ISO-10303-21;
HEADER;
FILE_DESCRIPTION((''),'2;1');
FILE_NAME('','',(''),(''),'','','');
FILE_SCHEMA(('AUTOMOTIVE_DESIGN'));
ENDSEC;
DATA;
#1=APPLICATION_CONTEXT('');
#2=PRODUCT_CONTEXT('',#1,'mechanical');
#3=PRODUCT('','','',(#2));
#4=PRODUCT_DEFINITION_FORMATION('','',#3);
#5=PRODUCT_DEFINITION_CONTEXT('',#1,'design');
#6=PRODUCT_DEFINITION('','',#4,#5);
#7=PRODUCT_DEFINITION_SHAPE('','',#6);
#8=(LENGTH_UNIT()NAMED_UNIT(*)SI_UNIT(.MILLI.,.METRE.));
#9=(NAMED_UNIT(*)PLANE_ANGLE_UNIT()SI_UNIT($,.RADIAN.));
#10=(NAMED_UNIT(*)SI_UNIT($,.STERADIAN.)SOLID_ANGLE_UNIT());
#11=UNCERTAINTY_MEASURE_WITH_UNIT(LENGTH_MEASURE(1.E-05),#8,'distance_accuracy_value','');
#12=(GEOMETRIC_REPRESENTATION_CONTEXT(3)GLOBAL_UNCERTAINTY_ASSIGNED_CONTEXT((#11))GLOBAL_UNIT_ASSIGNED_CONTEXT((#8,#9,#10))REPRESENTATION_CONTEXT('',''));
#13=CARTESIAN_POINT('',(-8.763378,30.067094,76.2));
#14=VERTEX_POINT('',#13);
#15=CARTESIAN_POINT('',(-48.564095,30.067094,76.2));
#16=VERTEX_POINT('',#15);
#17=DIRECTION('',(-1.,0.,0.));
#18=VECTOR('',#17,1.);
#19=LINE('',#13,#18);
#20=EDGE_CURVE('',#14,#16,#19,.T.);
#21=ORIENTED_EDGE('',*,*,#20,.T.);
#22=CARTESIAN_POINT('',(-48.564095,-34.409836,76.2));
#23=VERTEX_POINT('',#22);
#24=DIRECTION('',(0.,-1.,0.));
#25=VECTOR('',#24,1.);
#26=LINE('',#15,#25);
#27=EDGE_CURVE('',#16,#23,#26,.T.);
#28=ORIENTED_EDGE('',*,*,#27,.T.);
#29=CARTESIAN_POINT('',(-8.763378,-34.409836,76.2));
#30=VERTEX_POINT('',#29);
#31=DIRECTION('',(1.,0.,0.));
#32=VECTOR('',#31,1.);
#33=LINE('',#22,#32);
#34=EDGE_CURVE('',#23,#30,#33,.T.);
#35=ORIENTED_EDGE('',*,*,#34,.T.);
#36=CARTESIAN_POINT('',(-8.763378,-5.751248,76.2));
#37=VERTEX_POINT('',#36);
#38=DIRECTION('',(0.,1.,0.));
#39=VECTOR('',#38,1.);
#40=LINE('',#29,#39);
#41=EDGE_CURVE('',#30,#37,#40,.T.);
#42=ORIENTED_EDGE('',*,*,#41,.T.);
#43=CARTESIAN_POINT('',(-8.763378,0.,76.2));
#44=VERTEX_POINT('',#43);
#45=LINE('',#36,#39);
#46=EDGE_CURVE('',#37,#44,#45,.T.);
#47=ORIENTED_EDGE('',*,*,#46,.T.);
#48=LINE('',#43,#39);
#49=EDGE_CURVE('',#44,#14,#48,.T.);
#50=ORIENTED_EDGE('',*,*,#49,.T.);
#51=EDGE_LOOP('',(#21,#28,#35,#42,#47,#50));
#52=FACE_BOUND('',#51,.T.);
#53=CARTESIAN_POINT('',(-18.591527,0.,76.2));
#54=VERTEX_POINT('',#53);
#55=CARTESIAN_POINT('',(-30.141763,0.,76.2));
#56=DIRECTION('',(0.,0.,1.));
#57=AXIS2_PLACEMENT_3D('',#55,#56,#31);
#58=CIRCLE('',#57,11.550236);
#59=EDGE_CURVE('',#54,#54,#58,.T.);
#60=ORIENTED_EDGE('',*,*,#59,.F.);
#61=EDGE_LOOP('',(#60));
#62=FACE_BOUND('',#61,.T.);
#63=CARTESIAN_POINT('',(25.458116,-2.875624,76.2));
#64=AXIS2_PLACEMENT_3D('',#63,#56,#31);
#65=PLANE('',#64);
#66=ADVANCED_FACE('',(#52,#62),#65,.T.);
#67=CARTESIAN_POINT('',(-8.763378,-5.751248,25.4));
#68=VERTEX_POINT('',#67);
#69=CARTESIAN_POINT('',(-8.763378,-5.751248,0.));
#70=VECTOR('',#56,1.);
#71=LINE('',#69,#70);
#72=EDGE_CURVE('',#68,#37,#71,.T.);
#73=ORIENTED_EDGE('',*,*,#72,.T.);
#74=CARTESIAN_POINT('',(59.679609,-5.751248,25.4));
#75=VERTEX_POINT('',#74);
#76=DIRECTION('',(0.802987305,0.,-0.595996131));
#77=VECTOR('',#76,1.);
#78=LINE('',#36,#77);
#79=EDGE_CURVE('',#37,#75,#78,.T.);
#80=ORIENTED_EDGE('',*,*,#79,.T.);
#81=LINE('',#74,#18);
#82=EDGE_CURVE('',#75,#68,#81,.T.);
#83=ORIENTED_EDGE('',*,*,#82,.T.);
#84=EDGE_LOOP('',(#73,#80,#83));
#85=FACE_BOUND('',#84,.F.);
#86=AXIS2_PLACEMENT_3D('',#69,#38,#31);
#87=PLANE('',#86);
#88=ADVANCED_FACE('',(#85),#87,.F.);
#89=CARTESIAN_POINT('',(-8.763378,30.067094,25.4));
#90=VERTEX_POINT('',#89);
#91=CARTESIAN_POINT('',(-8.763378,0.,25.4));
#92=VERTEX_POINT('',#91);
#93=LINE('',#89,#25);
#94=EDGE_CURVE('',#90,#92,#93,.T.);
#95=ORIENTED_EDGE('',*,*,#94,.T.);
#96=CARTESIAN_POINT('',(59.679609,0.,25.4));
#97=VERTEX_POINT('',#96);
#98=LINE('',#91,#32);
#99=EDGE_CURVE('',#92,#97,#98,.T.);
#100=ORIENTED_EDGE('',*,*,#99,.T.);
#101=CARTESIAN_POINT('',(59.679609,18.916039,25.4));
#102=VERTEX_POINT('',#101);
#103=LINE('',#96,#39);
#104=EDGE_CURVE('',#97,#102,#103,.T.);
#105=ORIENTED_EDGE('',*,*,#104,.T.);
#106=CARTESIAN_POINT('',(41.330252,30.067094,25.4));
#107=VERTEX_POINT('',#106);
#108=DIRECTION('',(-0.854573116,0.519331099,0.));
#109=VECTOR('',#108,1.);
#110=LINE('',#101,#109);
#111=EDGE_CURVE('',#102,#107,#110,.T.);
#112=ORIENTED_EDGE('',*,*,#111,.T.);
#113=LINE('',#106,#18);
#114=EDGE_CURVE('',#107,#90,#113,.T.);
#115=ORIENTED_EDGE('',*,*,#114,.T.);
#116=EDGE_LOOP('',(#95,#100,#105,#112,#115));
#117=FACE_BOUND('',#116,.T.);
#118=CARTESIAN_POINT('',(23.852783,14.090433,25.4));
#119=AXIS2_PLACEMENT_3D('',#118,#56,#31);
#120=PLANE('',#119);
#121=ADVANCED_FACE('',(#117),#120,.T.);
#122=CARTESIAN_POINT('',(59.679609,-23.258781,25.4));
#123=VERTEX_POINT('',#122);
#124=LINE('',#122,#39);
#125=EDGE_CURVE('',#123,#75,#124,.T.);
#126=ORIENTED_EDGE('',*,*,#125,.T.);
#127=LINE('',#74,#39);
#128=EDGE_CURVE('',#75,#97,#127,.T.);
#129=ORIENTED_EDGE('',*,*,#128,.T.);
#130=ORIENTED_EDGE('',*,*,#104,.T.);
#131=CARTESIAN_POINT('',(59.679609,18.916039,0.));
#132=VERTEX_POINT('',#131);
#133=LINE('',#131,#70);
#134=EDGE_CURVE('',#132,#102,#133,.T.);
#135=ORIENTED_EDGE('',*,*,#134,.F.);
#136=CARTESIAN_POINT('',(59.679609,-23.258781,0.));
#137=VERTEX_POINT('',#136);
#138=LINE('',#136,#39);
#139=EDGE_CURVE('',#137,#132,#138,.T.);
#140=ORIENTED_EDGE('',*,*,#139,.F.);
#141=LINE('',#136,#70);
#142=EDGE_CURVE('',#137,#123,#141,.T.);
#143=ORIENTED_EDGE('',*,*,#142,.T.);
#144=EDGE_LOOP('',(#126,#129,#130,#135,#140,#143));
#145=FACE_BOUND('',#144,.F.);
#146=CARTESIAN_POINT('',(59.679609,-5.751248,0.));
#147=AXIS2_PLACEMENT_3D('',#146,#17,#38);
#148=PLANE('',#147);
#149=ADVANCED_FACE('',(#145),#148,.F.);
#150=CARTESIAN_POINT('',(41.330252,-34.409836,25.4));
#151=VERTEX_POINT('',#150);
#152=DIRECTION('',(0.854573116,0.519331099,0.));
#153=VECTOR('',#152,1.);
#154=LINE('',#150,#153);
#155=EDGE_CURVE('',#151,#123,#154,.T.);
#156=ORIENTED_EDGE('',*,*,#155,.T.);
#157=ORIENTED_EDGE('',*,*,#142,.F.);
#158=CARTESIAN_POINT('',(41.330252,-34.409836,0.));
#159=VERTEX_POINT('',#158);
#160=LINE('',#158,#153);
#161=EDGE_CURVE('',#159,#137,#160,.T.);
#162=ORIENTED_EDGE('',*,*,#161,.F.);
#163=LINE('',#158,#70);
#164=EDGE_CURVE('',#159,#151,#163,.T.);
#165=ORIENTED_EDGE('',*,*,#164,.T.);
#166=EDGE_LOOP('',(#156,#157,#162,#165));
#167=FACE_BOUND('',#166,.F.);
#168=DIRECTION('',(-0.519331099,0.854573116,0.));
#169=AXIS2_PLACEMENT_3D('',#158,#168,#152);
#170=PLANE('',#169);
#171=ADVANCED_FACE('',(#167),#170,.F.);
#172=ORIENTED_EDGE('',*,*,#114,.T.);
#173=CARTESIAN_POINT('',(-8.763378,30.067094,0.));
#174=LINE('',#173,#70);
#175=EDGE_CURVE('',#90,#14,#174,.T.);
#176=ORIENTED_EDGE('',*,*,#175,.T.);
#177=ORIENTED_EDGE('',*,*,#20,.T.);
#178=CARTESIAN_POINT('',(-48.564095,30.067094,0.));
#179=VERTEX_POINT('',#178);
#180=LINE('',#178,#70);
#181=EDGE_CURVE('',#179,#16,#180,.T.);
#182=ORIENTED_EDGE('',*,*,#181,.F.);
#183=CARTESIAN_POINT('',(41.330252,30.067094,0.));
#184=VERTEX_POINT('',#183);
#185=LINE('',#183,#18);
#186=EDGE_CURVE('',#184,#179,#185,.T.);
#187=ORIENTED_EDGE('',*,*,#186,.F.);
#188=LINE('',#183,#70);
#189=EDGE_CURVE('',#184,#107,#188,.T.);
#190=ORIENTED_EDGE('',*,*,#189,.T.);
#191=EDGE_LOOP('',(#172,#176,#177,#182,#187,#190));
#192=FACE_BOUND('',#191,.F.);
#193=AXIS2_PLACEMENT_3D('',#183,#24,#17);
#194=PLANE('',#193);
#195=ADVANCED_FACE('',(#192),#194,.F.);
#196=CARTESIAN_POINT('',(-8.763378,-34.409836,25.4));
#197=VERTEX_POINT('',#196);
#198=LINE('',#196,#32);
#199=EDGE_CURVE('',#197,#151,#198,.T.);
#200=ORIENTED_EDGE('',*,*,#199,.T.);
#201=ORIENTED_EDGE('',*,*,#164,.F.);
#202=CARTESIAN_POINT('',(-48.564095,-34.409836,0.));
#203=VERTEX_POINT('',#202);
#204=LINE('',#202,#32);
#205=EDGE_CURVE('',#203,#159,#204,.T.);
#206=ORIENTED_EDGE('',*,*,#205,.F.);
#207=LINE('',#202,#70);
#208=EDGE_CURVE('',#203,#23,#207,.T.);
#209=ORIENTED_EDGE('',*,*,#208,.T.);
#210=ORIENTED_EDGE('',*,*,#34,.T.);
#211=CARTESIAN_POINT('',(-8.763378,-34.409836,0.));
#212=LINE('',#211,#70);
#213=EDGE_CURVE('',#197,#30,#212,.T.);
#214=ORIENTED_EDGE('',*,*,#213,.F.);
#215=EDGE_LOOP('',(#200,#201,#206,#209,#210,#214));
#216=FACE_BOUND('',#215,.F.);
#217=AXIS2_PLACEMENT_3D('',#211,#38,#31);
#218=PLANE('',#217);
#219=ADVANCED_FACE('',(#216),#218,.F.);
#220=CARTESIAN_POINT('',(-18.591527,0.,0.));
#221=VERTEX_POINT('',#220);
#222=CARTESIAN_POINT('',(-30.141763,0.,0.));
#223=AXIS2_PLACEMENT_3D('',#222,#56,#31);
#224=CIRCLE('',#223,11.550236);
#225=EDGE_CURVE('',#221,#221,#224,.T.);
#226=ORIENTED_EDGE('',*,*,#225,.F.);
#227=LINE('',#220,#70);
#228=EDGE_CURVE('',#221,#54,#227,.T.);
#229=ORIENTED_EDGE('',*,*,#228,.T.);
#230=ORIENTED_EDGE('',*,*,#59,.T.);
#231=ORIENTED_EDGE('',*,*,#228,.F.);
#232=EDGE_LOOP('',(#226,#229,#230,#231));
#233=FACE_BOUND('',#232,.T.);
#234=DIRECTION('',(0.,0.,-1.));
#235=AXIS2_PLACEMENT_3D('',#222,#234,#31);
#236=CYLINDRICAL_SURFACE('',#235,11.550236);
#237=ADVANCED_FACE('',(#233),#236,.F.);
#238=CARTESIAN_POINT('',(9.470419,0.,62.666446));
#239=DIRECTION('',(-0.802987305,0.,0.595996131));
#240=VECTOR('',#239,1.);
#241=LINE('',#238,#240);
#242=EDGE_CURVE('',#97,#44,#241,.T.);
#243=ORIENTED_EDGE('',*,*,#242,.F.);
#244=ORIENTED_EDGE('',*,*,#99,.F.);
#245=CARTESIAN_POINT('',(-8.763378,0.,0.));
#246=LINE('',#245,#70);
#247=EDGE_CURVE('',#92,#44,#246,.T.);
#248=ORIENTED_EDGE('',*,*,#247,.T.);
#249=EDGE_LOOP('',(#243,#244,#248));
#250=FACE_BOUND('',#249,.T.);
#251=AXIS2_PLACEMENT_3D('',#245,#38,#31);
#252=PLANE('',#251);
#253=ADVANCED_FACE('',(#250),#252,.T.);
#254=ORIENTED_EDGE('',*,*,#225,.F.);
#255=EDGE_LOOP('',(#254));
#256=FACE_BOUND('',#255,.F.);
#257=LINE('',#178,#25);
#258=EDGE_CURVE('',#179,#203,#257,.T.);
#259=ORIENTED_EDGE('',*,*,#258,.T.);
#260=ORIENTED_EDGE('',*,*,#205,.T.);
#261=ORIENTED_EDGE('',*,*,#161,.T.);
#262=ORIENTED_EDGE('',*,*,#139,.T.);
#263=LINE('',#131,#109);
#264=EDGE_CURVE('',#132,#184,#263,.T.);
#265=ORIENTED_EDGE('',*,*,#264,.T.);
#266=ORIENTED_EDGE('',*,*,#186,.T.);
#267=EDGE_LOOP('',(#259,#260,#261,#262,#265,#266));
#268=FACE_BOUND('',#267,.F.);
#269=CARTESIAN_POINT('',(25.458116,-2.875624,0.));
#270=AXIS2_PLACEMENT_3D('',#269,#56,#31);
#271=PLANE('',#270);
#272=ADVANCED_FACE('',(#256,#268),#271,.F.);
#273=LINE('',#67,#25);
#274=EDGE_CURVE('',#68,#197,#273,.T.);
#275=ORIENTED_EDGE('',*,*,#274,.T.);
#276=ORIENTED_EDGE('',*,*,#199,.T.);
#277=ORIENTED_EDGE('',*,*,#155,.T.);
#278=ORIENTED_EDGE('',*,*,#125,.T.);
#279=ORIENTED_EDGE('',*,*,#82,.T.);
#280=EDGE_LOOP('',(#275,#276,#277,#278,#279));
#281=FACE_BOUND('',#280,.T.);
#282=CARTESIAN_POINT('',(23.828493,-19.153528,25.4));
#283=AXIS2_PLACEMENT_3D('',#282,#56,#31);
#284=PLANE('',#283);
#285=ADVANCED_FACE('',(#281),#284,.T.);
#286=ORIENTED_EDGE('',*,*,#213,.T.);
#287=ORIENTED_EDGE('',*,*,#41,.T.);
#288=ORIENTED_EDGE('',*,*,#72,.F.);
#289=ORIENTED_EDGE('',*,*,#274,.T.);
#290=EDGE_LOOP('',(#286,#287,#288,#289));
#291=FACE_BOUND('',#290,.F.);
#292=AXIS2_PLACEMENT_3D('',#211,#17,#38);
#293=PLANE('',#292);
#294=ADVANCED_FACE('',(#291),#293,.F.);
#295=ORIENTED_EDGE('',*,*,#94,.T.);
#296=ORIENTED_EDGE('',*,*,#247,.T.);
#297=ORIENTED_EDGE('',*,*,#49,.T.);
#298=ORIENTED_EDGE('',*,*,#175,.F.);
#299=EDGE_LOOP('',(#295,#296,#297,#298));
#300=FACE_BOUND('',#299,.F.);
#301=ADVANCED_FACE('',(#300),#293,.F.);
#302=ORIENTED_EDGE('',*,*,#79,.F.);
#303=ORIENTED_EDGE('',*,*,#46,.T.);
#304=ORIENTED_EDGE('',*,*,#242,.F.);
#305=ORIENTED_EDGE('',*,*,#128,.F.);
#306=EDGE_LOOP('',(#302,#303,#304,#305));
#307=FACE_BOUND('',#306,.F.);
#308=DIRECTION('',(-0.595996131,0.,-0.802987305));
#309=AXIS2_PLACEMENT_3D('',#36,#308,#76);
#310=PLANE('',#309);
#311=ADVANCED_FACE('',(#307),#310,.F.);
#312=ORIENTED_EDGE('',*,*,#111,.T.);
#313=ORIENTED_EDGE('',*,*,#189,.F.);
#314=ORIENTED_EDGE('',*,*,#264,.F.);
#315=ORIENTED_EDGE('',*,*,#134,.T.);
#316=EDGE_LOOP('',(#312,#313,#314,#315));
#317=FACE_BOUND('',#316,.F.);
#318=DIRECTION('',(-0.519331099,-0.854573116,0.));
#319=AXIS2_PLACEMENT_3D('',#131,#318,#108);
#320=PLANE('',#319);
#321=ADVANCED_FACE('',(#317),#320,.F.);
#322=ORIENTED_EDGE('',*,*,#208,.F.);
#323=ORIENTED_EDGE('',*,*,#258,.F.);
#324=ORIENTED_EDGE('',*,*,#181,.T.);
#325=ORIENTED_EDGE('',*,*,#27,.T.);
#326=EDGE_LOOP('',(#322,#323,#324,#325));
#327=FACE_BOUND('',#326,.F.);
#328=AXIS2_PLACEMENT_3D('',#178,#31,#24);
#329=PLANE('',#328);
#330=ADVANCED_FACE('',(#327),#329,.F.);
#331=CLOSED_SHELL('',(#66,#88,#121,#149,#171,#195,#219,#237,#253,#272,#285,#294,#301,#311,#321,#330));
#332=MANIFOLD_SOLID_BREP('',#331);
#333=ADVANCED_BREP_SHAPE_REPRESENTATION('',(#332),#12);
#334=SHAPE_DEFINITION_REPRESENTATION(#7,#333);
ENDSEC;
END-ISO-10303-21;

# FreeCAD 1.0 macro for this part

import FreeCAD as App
import Part
import Sketcher
from FreeCAD import Vector
Q = App.Units.Quantity


def add_polygon(sketch, points):
    """Adds a closed chain of lines whose ends are joined by coincident constraints."""
    first, n = sketch.GeometryCount, len(points)
    for a, b in zip(points, points[1:] + points[:1]):
        sketch.addGeometry(Part.LineSegment(App.Vector(*a, 0), App.Vector(*b, 0)), False)
    for i in range(n):
        sketch.addConstraint(Sketcher.Constraint("Coincident", first + i, 2, first + (i + 1) % n, 1))

doc = App.newDocument("Part")
body = doc.addObject("PartDesign::Body", "Body")

sketch1 = body.newObject("Sketcher::SketchObject", "Sketch")
sketch1.AttachmentSupport = (doc.getObject("XY_Plane"), [""])
sketch1.MapMode = "FlatFace"
add_polygon(sketch1, [(-8.763378, 30.067094), (-48.564095, 30.067094), (-48.564095, -34.409836), (-8.763378, -34.409836)])
sketch1.addGeometry(Part.Circle(Vector(-30.141763, 0, 0), Vector(0, 0, 1), 11.550236), False)
sketch1.addConstraint([
    Sketcher.Constraint("Horizontal", 0),
    Sketcher.Constraint("Vertical", 1),
    Sketcher.Constraint("Horizontal", 2),
    Sketcher.Constraint("Vertical", 3),
    Sketcher.Constraint("PointOnObject", 4, 3, -1),
    Sketcher.Constraint("Diameter", 4, 23.100473),
    Sketcher.Constraint("DistanceY", 1, 2, 1, 1, 64.47693),
    Sketcher.Constraint("DistanceX", 0, 2, 0, 1, 39.800717),
    Sketcher.Constraint("DistanceX", 0, 2, 4, 3, 18.422332),
    Sketcher.Constraint("DistanceX", 4, 3, -1, 1, 30.141763),
    Sketcher.Constraint("DistanceY", -1, 1, 0, 2, 30.067094),
])
pad1 = body.newObject("PartDesign::Pad", "Pad")
pad1.Profile = sketch1
pad1.Length = Q("3 in")

sketch2 = body.newObject("Sketcher::SketchObject", "Sketch001")
sketch2.AttachmentSupport = (doc.getObject("XY_Plane"), [""])
sketch2.MapMode = "FlatFace"
add_polygon(sketch2, [(-8.763378, -5.751248), (-8.763378, -34.409836), (41.330252, -34.409836), (59.679609, -23.258781), (59.679609, -5.751248)])
sketch2.addConstraint([
    Sketcher.Constraint("Vertical", 0),
    Sketcher.Constraint("Horizontal", 1),
    Sketcher.Constraint("Vertical", 3),
    Sketcher.Constraint("Horizontal", 4),
    Sketcher.Constraint("DistanceY", 2, 2, -1, 1, Q("0.9157 in")),
    Sketcher.Constraint("DistanceX", 1, 1, 1, 2, 50.093629),
    Sketcher.Constraint("DistanceY", 0, 2, 0, 1, 28.658588),
    Sketcher.Constraint("DistanceX", 4, 2, 4, 1, 68.442986),
    Sketcher.Constraint("DistanceY", 3, 1, 3, 2, 17.507534),
    Sketcher.Constraint("DistanceX", -1, 1, 1, 2, 41.330252),
])
pad2 = body.newObject("PartDesign::Pad", "Pad001")
pad2.Profile = sketch2
pad2.Length = Q("1 in")

sketch3 = body.newObject("Sketcher::SketchObject", "Sketch002")
sketch3.AttachmentSupport = (doc.getObject("XY_Plane"), [""])
sketch3.MapMode = "FlatFace"
add_polygon(sketch3, [(41.330252, 30.067094), (-8.763378, 30.067094), (-8.763378, 0), (59.679609, 0), (59.679609, 18.916039)])
sketch3.addConstraint([
    Sketcher.Constraint("Horizontal", 0),
    Sketcher.Constraint("Vertical", 1),
    Sketcher.Constraint("Horizontal", 2),
    Sketcher.Constraint("Vertical", 3),
    Sketcher.Constraint("PointOnObject", 1, 2, -1),
    Sketcher.Constraint("DistanceX", 0, 2, 0, 1, 50.093629),
    Sketcher.Constraint("DistanceY", 3, 1, 3, 2, 18.916039),
    Sketcher.Constraint("DistanceX", 2, 1, 2, 2, 68.442986),
    Sketcher.Constraint("DistanceY", 1, 2, 1, 1, 30.067094),
    Sketcher.Constraint("DistanceX", -1, 1, 2, 2, 59.679609),
])
pad3 = body.newObject("PartDesign::Pad", "Pad002")
pad3.Profile = sketch3
pad3.Length = Q("1 in")

sketch4 = body.newObject("Sketcher::SketchObject", "Sketch003")
sketch4.AttachmentSupport = (doc.getObject("XY_Plane"), [""])
sketch4.MapMode = "FlatFace"
add_polygon(sketch4, [(-8.763378, 0), (-8.763378, -5.751248), (59.679609, -5.751248), (59.679609, 0)])
sketch4.addConstraint([
    Sketcher.Constraint("Vertical", 0),
    Sketcher.Constraint("Horizontal", 1),
    Sketcher.Constraint("Vertical", 2),
    Sketcher.Constraint("Horizontal", 3),
    Sketcher.Constraint("PointOnObject", 2, 2, -1),
    Sketcher.Constraint("DistanceX", 1, 1, 1, 2, 68.442986),
    Sketcher.Constraint("DistanceY", 0, 2, 0, 1, 5.751248),
    Sketcher.Constraint("DistanceX", -1, 1, 1, 2, 59.679609),
])
pad4 = body.newObject("PartDesign::Pad", "Pad003")
pad4.Profile = sketch4
pad4.Length = Q("3 in")

sketch5 = body.newObject("Sketcher::SketchObject", "Sketch004")
sketch5.AttachmentSupport = (doc.getObject("XZ_Plane"), [""])
sketch5.MapMode = "FlatFace"
sketch5.AttachmentOffset = App.Placement(Vector(0, 0, 5.751248), App.Rotation())
add_polygon(sketch5, [(59.679609, 76.2), (-8.763378, 76.2), (59.679609, 25.4)])
sketch5.addConstraint([
    Sketcher.Constraint("Horizontal", 0),
    Sketcher.Constraint("Vertical", 2),
    Sketcher.Constraint("DistanceY", 2, 1, 2, 2, Q("2 in")),
    Sketcher.Constraint("DistanceY", -1, 1, 0, 2, Q("3 in")),
    Sketcher.Constraint("DistanceX", 0, 2, 0, 1, 68.442986),
    Sketcher.Constraint("DistanceX", -1, 1, 1, 2, 59.679609),
])
pocket1 = body.newObject("PartDesign::Pocket", "Pocket")
pocket1.Profile = sketch5
pocket1.Length = Q("1 in")

doc.recompute()
